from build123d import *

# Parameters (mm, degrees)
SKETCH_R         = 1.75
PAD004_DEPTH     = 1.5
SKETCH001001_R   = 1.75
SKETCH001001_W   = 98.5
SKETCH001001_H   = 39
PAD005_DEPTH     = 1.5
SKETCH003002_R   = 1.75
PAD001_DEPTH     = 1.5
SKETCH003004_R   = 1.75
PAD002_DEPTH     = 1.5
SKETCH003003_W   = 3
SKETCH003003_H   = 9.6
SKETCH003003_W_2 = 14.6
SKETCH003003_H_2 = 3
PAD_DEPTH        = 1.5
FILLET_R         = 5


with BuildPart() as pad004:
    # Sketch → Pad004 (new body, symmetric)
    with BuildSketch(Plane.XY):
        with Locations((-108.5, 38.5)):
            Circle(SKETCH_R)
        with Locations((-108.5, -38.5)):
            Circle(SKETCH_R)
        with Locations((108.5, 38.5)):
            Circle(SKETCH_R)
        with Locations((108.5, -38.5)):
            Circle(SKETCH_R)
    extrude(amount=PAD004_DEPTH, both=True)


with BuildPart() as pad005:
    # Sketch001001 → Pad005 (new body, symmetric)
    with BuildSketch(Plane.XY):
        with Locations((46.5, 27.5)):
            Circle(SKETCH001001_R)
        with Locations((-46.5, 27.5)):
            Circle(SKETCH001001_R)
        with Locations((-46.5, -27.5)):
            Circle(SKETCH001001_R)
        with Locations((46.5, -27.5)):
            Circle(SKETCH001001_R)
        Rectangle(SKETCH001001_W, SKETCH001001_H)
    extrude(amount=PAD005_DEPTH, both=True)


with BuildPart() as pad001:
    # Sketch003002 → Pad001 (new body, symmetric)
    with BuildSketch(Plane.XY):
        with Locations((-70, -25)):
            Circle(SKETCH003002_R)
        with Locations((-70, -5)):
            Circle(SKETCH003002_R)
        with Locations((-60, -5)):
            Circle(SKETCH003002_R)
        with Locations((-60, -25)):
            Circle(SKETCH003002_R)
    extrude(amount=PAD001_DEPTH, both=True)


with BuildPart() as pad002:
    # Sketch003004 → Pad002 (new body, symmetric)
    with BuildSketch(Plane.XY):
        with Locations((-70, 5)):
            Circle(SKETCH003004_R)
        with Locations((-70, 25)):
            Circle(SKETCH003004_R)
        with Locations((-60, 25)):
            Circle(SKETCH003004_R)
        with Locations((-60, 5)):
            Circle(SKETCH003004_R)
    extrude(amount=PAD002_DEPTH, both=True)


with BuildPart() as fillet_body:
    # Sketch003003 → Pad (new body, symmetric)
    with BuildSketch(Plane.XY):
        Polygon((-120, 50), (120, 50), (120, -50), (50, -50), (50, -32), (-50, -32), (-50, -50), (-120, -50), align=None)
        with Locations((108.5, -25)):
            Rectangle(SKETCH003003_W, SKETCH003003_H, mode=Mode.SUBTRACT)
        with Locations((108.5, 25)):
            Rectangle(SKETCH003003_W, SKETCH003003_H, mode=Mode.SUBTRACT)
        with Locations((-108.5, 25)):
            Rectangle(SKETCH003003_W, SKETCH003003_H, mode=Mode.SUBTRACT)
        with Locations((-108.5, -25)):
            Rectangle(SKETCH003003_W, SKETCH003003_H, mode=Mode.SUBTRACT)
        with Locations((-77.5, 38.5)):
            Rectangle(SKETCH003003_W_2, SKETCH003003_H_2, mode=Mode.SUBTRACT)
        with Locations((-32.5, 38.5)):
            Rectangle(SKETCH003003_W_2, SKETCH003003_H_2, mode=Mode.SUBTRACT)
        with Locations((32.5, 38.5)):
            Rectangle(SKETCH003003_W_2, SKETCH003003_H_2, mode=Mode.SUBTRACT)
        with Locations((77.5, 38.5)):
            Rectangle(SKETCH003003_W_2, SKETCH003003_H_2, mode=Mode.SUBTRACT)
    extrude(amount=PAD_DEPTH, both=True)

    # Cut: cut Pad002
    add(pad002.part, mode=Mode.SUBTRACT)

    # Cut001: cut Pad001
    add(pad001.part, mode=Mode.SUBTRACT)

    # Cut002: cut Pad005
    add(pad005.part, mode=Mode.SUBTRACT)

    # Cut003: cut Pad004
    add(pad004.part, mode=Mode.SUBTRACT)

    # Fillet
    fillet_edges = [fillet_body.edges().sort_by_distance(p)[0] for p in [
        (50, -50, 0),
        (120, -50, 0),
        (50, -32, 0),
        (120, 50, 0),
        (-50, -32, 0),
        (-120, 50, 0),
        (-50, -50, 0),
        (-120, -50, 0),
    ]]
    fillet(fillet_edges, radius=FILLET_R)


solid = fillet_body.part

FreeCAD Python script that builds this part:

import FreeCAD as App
import Part
import Sketcher

V = App.Vector


def edges_at(feature, points):
    """Names of the edges that pass closest to the given points."""
    edges = feature.Shape.Edges
    near = lambda p: min(range(len(edges)), key=lambda i: edges[i].distToShape(Part.Vertex(*p))[0])
    return sorted({f"Edge{near(p) + 1}" for p in points})


def add_polygon(sketch, points):
    """Adds a closed chain of lines whose ends are joined by coincident constraints."""
    first, n = sketch.GeometryCount, len(points)
    for a, b in zip(points, points[1:] + points[:1]):
        sketch.addGeometry(Part.LineSegment(App.Vector(*a, 0), App.Vector(*b, 0)), False)
    for i in range(n):
        sketch.addConstraint(Sketcher.Constraint("Coincident", first + i, 2, first + (i + 1) % n, 1))

doc = App.newDocument("Part")
params = doc.addObject("Spreadsheet::Sheet", "Params")
for row, (alias, value) in enumerate([
    ("sketch1_diameter", "3.5 mm"),
    ("pad1_length", "3 mm"),
    ("sketch2_diameter", "3.5 mm"),
    ("sketch2_height", "39 mm"),
    ("sketch2_width", "98.5 mm"),
    ("pad2_length", "3 mm"),
    ("sketch3_diameter", "3.5 mm"),
    ("pad3_length", "3 mm"),
    ("sketch4_diameter", "3.5 mm"),
    ("pad4_length", "3 mm"),
    ("sketch5_width", "240 mm"),
    ("sketch5_width2", "70 mm"),
    ("sketch5_width3", "3 mm"),
    ("sketch5_height", "18 mm"),
    ("sketch5_width4", "14.6 mm"),
    ("pad5_length", "3 mm"),
    ("fillet_radius", "5 mm"),
], start=1):
    params.set(f"A{row}", alias)
    params.set(f"B{row}", "=" + value)
    params.setAlias(f"B{row}", alias)

body = doc.addObject("PartDesign::Body", "Body")
body.AllowCompound = True

sketch1 = body.newObject("Sketcher::SketchObject", "Sketch")
sketch1.AttachmentSupport = (doc.getObject("XY_Plane"), [""])
sketch1.MapMode = "FlatFace"
sketch1.addGeometry(Part.Circle(V(-108.5, 38.5, 0), V(0, 0, 1), 1.8), False)
sketch1.addGeometry(Part.Circle(V(-108.5, -38.5, 0), V(0, 0, 1), 1.8), False)
sketch1.addGeometry(Part.Circle(V(108.5, 38.5, 0), V(0, 0, 1), 1.8), False)
sketch1.addGeometry(Part.Circle(V(108.5, -38.5, 0), V(0, 0, 1), 1.8), False)
sketch1.addConstraint(Sketcher.Constraint("Equal", 0, 1))
sketch1.addConstraint(Sketcher.Constraint("Equal", 1, 2))
sketch1.addConstraint(Sketcher.Constraint("Equal", 2, 3))
sketch1.addConstraint(Sketcher.Constraint("Symmetric", 1, 3, 2, 3, -1, 1))
sketch1.addConstraint(Sketcher.Constraint("Symmetric", 0, 3, 3, 3, -1, 1))
sketch1.addConstraint(Sketcher.Constraint("Symmetric", 0, 3, 2, 3, -2))
sketch1.addConstraint(Sketcher.Constraint("Diameter", 0, 3.5))
sketch1.addConstraint(Sketcher.Constraint("DistanceY", 1, 3, 0, 3, 77.0))
sketch1.addConstraint(Sketcher.Constraint("DistanceX", 0, 3, 2, 3, 217.0))
sketch1.setExpression("Constraints[6]", "Params.sketch1_diameter")
pad1 = body.newObject("PartDesign::Pad", "Pad")
pad1.Profile = sketch1
pad1.setExpression("Length", "Params.pad1_length")
pad1.Midplane = True
body2 = doc.addObject("PartDesign::Body", "Body001")
body2.AllowCompound = True

sketch2 = body2.newObject("Sketcher::SketchObject", "Sketch001")
sketch2.AttachmentSupport = (doc.getObject("XY_Plane001"), [""])
sketch2.MapMode = "FlatFace"
sketch2.addGeometry(Part.Circle(V(46.5, 27.5, 0), V(0, 0, 1), 1.8), False)
sketch2.addGeometry(Part.Circle(V(-46.5, 27.5, 0), V(0, 0, 1), 1.8), False)
sketch2.addGeometry(Part.Circle(V(-46.5, -27.5, 0), V(0, 0, 1), 1.8), False)
sketch2.addGeometry(Part.Circle(V(46.5, -27.5, 0), V(0, 0, 1), 1.8), False)
add_polygon(sketch2, [(-49.2, 19.5), (-49.2, -19.5), (49.2, -19.5), (49.2, 19.5)])
sketch2.addConstraint(Sketcher.Constraint("Vertical", 4))
sketch2.addConstraint(Sketcher.Constraint("Horizontal", 5))
sketch2.addConstraint(Sketcher.Constraint("Vertical", 6))
sketch2.addConstraint(Sketcher.Constraint("Horizontal", 7))
sketch2.addConstraint(Sketcher.Constraint("Equal", 0, 1))
sketch2.addConstraint(Sketcher.Constraint("Equal", 1, 2))
sketch2.addConstraint(Sketcher.Constraint("Equal", 2, 3))
sketch2.addConstraint(Sketcher.Constraint("Symmetric", 0, 3, 2, 3, -1, 1))
sketch2.addConstraint(Sketcher.Constraint("Symmetric", 1, 3, 3, 3, -1, 1))
sketch2.addConstraint(Sketcher.Constraint("Symmetric", 4, 2, 6, 2, -1, 1))
sketch2.addConstraint(Sketcher.Constraint("Symmetric", 0, 3, 1, 3, -2))
sketch2.addConstraint(Sketcher.Constraint("Diameter", 0, 3.5))
sketch2.addConstraint(Sketcher.Constraint("DistanceY", 4, 2, 4, 1, 39.0))
sketch2.addConstraint(Sketcher.Constraint("DistanceX", 5, 1, 5, 2, 98.5))
sketch2.addConstraint(Sketcher.Constraint("DistanceX", 1, 3, 0, 3, 93.0))
sketch2.addConstraint(Sketcher.Constraint("DistanceY", 2, 3, 1, 3, 55.0))
sketch2.setExpression("Constraints[15]", "Params.sketch2_diameter")
sketch2.setExpression("Constraints[16]", "Params.sketch2_height")
sketch2.setExpression("Constraints[17]", "Params.sketch2_width")
pad2 = body2.newObject("PartDesign::Pad", "Pad001")
pad2.Profile = sketch2
pad2.setExpression("Length", "Params.pad2_length")
pad2.Midplane = True
body3 = doc.addObject("PartDesign::Body", "Body002")
body3.AllowCompound = True

sketch3 = body3.newObject("Sketcher::SketchObject", "Sketch002")
sketch3.AttachmentSupport = (doc.getObject("XY_Plane002"), [""])
sketch3.MapMode = "FlatFace"
sketch3.addGeometry(Part.Circle(V(-70, -25, 0), V(0, 0, 1), 1.8), False)
sketch3.addGeometry(Part.Circle(V(-70, -5, 0), V(0, 0, 1), 1.8), False)
sketch3.addGeometry(Part.Circle(V(-60, -5, 0), V(0, 0, 1), 1.8), False)
sketch3.addGeometry(Part.Circle(V(-60, -25, 0), V(0, 0, 1), 1.8), False)
sketch3.addConstraint(Sketcher.Constraint("Equal", 0, 1))
sketch3.addConstraint(Sketcher.Constraint("Equal", 1, 2))
sketch3.addConstraint(Sketcher.Constraint("Equal", 2, 3))
sketch3.addConstraint(Sketcher.Constraint("Horizontal", 1, 3, 2, 3))
sketch3.addConstraint(Sketcher.Constraint("Horizontal", 0, 3, 3, 3))
sketch3.addConstraint(Sketcher.Constraint("Vertical", 0, 3, 1, 3))
sketch3.addConstraint(Sketcher.Constraint("Vertical", 2, 3, 3, 3))
sketch3.addConstraint(Sketcher.Constraint("Diameter", 0, 3.5))
sketch3.addConstraint(Sketcher.Constraint("DistanceX", 0, 3, -1, 1, 70.0))
sketch3.addConstraint(Sketcher.Constraint("DistanceY", 0, 3, -1, 1, 25.0))
sketch3.addConstraint(Sketcher.Constraint("DistanceY", 1, 3, -1, 1, 5.0))
sketch3.addConstraint(Sketcher.Constraint("DistanceX", 2, 3, -1, 1, 60.0))
sketch3.setExpression("Constraints[7]", "Params.sketch3_diameter")
pad3 = body3.newObject("PartDesign::Pad", "Pad002")
pad3.Profile = sketch3
pad3.setExpression("Length", "Params.pad3_length")
pad3.Midplane = True
body4 = doc.addObject("PartDesign::Body", "Body003")
body4.AllowCompound = True

sketch4 = body4.newObject("Sketcher::SketchObject", "Sketch003")
sketch4.AttachmentSupport = (doc.getObject("XY_Plane003"), [""])
sketch4.MapMode = "FlatFace"
sketch4.addGeometry(Part.Circle(V(-70, 5, 0), V(0, 0, 1), 1.8), False)
sketch4.addGeometry(Part.Circle(V(-70, 25, 0), V(0, 0, 1), 1.8), False)
sketch4.addGeometry(Part.Circle(V(-60, 25, 0), V(0, 0, 1), 1.8), False)
sketch4.addGeometry(Part.Circle(V(-60, 5, 0), V(0, 0, 1), 1.8), False)
sketch4.addConstraint(Sketcher.Constraint("Equal", 0, 1))
sketch4.addConstraint(Sketcher.Constraint("Equal", 1, 2))
sketch4.addConstraint(Sketcher.Constraint("Equal", 2, 3))
sketch4.addConstraint(Sketcher.Constraint("Horizontal", 1, 3, 2, 3))
sketch4.addConstraint(Sketcher.Constraint("Horizontal", 0, 3, 3, 3))
sketch4.addConstraint(Sketcher.Constraint("Vertical", 0, 3, 1, 3))
sketch4.addConstraint(Sketcher.Constraint("Vertical", 2, 3, 3, 3))
sketch4.addConstraint(Sketcher.Constraint("Diameter", 0, 3.5))
sketch4.addConstraint(Sketcher.Constraint("DistanceX", 0, 3, -1, 1, 70.0))
sketch4.addConstraint(Sketcher.Constraint("DistanceY", -1, 1, 0, 3, 5.0))
sketch4.addConstraint(Sketcher.Constraint("DistanceY", -1, 1, 1, 3, 25.0))
sketch4.addConstraint(Sketcher.Constraint("DistanceX", 2, 3, -1, 1, 60.0))
sketch4.setExpression("Constraints[7]", "Params.sketch4_diameter")
pad4 = body4.newObject("PartDesign::Pad", "Pad003")
pad4.Profile = sketch4
pad4.setExpression("Length", "Params.pad4_length")
pad4.Midplane = True
body5 = doc.addObject("PartDesign::Body", "Body004")

sketch5 = body5.newObject("Sketcher::SketchObject", "Sketch004")
sketch5.AttachmentSupport = (doc.getObject("XY_Plane004"), [""])
sketch5.MapMode = "FlatFace"
add_polygon(sketch5, [(120, 50), (-120, 50), (-120, -50), (-50, -50), (-50, -32), (50, -32), (50, -50), (120, -50)])
add_polygon(sketch5, [(107, -29.8), (107, -20.2), (110, -20.2), (110, -29.8)])
add_polygon(sketch5, [(-110, -29.8), (-110, -20.2), (-107, -20.2), (-107, -29.8)])
add_polygon(sketch5, [(107, 20.2), (107, 29.8), (110, 29.8), (110, 20.2)])
add_polygon(sketch5, [(70.2, 37), (70.2, 40), (84.8, 40), (84.8, 37)])
add_polygon(sketch5, [(25.2, 37), (25.2, 40), (39.8, 40), (39.8, 37)])
add_polygon(sketch5, [(-39.8, 37), (-39.8, 40), (-25.2, 40), (-25.2, 37)])
add_polygon(sketch5, [(-110, 20.2), (-110, 29.8), (-107, 29.8), (-107, 20.2)])
add_polygon(sketch5, [(-84.8, 37), (-84.8, 40), (-70.2, 40), (-70.2, 37)])
sketch5.addConstraint(Sketcher.Constraint("Horizontal", 0))
sketch5.addConstraint(Sketcher.Constraint("Vertical", 1))
sketch5.addConstraint(Sketcher.Constraint("Horizontal", 2))
sketch5.addConstraint(Sketcher.Constraint("Vertical", 3))
sketch5.addConstraint(Sketcher.Constraint("Horizontal", 4))
sketch5.addConstraint(Sketcher.Constraint("Vertical", 5))
sketch5.addConstraint(Sketcher.Constraint("Horizontal", 6))
sketch5.addConstraint(Sketcher.Constraint("Vertical", 7))
sketch5.addConstraint(Sketcher.Constraint("Vertical", 8))
sketch5.addConstraint(Sketcher.Constraint("Horizontal", 9))
sketch5.addConstraint(Sketcher.Constraint("Vertical", 10))
sketch5.addConstraint(Sketcher.Constraint("Horizontal", 11))
sketch5.addConstraint(Sketcher.Constraint("Vertical", 12))
sketch5.addConstraint(Sketcher.Constraint("Horizontal", 13))
sketch5.addConstraint(Sketcher.Constraint("Vertical", 14))
sketch5.addConstraint(Sketcher.Constraint("Horizontal", 15))
sketch5.addConstraint(Sketcher.Constraint("Vertical", 16))
sketch5.addConstraint(Sketcher.Constraint("Horizontal", 17))
sketch5.addConstraint(Sketcher.Constraint("Vertical", 18))
sketch5.addConstraint(Sketcher.Constraint("Horizontal", 19))
sketch5.addConstraint(Sketcher.Constraint("Vertical", 20))
sketch5.addConstraint(Sketcher.Constraint("Horizontal", 21))
sketch5.addConstraint(Sketcher.Constraint("Vertical", 22))
sketch5.addConstraint(Sketcher.Constraint("Horizontal", 23))
sketch5.addConstraint(Sketcher.Constraint("Vertical", 24))
sketch5.addConstraint(Sketcher.Constraint("Horizontal", 25))
sketch5.addConstraint(Sketcher.Constraint("Vertical", 26))
sketch5.addConstraint(Sketcher.Constraint("Horizontal", 27))
sketch5.addConstraint(Sketcher.Constraint("Vertical", 28))
sketch5.addConstraint(Sketcher.Constraint("Horizontal", 29))
sketch5.addConstraint(Sketcher.Constraint("Vertical", 30))
sketch5.addConstraint(Sketcher.Constraint("Horizontal", 31))
sketch5.addConstraint(Sketcher.Constraint("Vertical", 32))
sketch5.addConstraint(Sketcher.Constraint("Horizontal", 33))
sketch5.addConstraint(Sketcher.Constraint("Vertical", 34))
sketch5.addConstraint(Sketcher.Constraint("Horizontal", 35))
sketch5.addConstraint(Sketcher.Constraint("Vertical", 36))
sketch5.addConstraint(Sketcher.Constraint("Horizontal", 37))
sketch5.addConstraint(Sketcher.Constraint("Vertical", 38))
sketch5.addConstraint(Sketcher.Constraint("Horizontal", 39))
sketch5.addConstraint(Sketcher.Constraint("Symmetric", 0, 2, 6, 2, -1, 1))
sketch5.addConstraint(Sketcher.Constraint("Symmetric", 14, 2, 16, 2, -1, 1))
sketch5.addConstraint(Sketcher.Constraint("Symmetric", 12, 2, 18, 2, -1, 1))
sketch5.addConstraint(Sketcher.Constraint("Symmetric", 10, 2, 32, 2, -1, 1))
sketch5.addConstraint(Sketcher.Constraint("Symmetric", 8, 2, 34, 2, -1, 1))
sketch5.addConstraint(Sketcher.Constraint("Symmetric", 2, 2, 5, 2, -2))
sketch5.addConstraint(Sketcher.Constraint("Symmetric", 9, 2, 12, 2, -2))
sketch5.addConstraint(Sketcher.Constraint("Symmetric", 11, 2, 14, 2, -2))
sketch5.addConstraint(Sketcher.Constraint("Symmetric", 25, 2, 28, 2, -2))
sketch5.addConstraint(Sketcher.Constraint("Symmetric", 27, 2, 30, 2, -2))
sketch5.addConstraint(Sketcher.Constraint("Symmetric", 21, 2, 36, 2, -2))
sketch5.addConstraint(Sketcher.Constraint("Symmetric", 23, 2, 38, 2, -2))
sketch5.addConstraint(Sketcher.Constraint("Horizontal", 21, 2, 24, 2))
sketch5.addConstraint(Sketcher.Constraint("Horizontal", 23, 2, 26, 2))
sketch5.addConstraint(Sketcher.Constraint("Equal", 23, 25))
sketch5.addConstraint(Sketcher.Constraint("Equal", 4, 1))
sketch5.addConstraint(Sketcher.Constraint("Equal", 35, 20))
sketch5.addConstraint(Sketcher.Constraint("DistanceX", 0, 2, 0, 1, 240.0))
sketch5.addConstraint(Sketcher.Constraint("DistanceX", 2, 1, 2, 2, 70.0))
sketch5.addConstraint(Sketcher.Constraint("DistanceX", 9, 1, 9, 2, 3.0))
sketch5.addConstraint(Sketcher.Constraint("DistanceY", 3, 1, 3, 2, 18.0))
sketch5.addConstraint(Sketcher.Constraint("DistanceX", 21, 1, 21, 2, 14.6))
sketch5.addConstraint(Sketcher.Constraint("DistanceY", 8, 1, 8, 2, 9.6))
sketch5.addConstraint(Sketcher.Constraint("DistanceX", -1, 1, 8, 2, 107.0))
sketch5.addConstraint(Sketcher.Constraint("DistanceY", -1, 1, 20, 2, 40.0))
sketch5.addConstraint(Sketcher.Constraint("DistanceY", 8, 2, 16, 2, 50.0))
sketch5.addConstraint(Sketcher.Constraint("DistanceX", 24, 2, 20, 2, 45.0))
sketch5.addConstraint(Sketcher.Constraint("DistanceX", 28, 2, 24, 2, 65.0))
sketch5.setExpression("Constraints[97]", "Params.sketch5_width")
sketch5.setExpression("Constraints[98]", "Params.sketch5_width2")
sketch5.setExpression("Constraints[99]", "Params.sketch5_width3")
sketch5.setExpression("Constraints[100]", "Params.sketch5_height")
sketch5.setExpression("Constraints[101]", "Params.sketch5_width4")
pad5 = body5.newObject("PartDesign::Pad", "Pad004")
pad5.Profile = sketch5
pad5.setExpression("Length", "Params.pad5_length")
pad5.Midplane = True
doc.recompute()

boolean = body5.newObject("PartDesign::Boolean", "Boolean")
boolean.Type = "Cut"
boolean.addObjects([body4])
doc.recompute()

boolean2 = body5.newObject("PartDesign::Boolean", "Boolean001")
boolean2.Type = "Cut"
boolean2.addObjects([body3])
doc.recompute()

boolean3 = body5.newObject("PartDesign::Boolean", "Boolean002")
boolean3.Type = "Cut"
boolean3.addObjects([body2])
doc.recompute()

boolean4 = body5.newObject("PartDesign::Boolean", "Boolean003")
boolean4.Type = "Cut"
boolean4.addObjects([body])
doc.recompute()

fillet = body5.newObject("PartDesign::Fillet", "Fillet")
fillet.Base = (boolean4, edges_at(boolean4, [
    (50, -50, 0),
    (120, -50, 0),
    (50, -32, 0),
    (120, 50, 0),
    (-50, -32, 0),
    (-120, 50, 0),
    (-50, -50, 0),
    (-120, -50, 0),
]))
fillet.setExpression("Radius", "Params.fillet_radius")

doc.recompute()
